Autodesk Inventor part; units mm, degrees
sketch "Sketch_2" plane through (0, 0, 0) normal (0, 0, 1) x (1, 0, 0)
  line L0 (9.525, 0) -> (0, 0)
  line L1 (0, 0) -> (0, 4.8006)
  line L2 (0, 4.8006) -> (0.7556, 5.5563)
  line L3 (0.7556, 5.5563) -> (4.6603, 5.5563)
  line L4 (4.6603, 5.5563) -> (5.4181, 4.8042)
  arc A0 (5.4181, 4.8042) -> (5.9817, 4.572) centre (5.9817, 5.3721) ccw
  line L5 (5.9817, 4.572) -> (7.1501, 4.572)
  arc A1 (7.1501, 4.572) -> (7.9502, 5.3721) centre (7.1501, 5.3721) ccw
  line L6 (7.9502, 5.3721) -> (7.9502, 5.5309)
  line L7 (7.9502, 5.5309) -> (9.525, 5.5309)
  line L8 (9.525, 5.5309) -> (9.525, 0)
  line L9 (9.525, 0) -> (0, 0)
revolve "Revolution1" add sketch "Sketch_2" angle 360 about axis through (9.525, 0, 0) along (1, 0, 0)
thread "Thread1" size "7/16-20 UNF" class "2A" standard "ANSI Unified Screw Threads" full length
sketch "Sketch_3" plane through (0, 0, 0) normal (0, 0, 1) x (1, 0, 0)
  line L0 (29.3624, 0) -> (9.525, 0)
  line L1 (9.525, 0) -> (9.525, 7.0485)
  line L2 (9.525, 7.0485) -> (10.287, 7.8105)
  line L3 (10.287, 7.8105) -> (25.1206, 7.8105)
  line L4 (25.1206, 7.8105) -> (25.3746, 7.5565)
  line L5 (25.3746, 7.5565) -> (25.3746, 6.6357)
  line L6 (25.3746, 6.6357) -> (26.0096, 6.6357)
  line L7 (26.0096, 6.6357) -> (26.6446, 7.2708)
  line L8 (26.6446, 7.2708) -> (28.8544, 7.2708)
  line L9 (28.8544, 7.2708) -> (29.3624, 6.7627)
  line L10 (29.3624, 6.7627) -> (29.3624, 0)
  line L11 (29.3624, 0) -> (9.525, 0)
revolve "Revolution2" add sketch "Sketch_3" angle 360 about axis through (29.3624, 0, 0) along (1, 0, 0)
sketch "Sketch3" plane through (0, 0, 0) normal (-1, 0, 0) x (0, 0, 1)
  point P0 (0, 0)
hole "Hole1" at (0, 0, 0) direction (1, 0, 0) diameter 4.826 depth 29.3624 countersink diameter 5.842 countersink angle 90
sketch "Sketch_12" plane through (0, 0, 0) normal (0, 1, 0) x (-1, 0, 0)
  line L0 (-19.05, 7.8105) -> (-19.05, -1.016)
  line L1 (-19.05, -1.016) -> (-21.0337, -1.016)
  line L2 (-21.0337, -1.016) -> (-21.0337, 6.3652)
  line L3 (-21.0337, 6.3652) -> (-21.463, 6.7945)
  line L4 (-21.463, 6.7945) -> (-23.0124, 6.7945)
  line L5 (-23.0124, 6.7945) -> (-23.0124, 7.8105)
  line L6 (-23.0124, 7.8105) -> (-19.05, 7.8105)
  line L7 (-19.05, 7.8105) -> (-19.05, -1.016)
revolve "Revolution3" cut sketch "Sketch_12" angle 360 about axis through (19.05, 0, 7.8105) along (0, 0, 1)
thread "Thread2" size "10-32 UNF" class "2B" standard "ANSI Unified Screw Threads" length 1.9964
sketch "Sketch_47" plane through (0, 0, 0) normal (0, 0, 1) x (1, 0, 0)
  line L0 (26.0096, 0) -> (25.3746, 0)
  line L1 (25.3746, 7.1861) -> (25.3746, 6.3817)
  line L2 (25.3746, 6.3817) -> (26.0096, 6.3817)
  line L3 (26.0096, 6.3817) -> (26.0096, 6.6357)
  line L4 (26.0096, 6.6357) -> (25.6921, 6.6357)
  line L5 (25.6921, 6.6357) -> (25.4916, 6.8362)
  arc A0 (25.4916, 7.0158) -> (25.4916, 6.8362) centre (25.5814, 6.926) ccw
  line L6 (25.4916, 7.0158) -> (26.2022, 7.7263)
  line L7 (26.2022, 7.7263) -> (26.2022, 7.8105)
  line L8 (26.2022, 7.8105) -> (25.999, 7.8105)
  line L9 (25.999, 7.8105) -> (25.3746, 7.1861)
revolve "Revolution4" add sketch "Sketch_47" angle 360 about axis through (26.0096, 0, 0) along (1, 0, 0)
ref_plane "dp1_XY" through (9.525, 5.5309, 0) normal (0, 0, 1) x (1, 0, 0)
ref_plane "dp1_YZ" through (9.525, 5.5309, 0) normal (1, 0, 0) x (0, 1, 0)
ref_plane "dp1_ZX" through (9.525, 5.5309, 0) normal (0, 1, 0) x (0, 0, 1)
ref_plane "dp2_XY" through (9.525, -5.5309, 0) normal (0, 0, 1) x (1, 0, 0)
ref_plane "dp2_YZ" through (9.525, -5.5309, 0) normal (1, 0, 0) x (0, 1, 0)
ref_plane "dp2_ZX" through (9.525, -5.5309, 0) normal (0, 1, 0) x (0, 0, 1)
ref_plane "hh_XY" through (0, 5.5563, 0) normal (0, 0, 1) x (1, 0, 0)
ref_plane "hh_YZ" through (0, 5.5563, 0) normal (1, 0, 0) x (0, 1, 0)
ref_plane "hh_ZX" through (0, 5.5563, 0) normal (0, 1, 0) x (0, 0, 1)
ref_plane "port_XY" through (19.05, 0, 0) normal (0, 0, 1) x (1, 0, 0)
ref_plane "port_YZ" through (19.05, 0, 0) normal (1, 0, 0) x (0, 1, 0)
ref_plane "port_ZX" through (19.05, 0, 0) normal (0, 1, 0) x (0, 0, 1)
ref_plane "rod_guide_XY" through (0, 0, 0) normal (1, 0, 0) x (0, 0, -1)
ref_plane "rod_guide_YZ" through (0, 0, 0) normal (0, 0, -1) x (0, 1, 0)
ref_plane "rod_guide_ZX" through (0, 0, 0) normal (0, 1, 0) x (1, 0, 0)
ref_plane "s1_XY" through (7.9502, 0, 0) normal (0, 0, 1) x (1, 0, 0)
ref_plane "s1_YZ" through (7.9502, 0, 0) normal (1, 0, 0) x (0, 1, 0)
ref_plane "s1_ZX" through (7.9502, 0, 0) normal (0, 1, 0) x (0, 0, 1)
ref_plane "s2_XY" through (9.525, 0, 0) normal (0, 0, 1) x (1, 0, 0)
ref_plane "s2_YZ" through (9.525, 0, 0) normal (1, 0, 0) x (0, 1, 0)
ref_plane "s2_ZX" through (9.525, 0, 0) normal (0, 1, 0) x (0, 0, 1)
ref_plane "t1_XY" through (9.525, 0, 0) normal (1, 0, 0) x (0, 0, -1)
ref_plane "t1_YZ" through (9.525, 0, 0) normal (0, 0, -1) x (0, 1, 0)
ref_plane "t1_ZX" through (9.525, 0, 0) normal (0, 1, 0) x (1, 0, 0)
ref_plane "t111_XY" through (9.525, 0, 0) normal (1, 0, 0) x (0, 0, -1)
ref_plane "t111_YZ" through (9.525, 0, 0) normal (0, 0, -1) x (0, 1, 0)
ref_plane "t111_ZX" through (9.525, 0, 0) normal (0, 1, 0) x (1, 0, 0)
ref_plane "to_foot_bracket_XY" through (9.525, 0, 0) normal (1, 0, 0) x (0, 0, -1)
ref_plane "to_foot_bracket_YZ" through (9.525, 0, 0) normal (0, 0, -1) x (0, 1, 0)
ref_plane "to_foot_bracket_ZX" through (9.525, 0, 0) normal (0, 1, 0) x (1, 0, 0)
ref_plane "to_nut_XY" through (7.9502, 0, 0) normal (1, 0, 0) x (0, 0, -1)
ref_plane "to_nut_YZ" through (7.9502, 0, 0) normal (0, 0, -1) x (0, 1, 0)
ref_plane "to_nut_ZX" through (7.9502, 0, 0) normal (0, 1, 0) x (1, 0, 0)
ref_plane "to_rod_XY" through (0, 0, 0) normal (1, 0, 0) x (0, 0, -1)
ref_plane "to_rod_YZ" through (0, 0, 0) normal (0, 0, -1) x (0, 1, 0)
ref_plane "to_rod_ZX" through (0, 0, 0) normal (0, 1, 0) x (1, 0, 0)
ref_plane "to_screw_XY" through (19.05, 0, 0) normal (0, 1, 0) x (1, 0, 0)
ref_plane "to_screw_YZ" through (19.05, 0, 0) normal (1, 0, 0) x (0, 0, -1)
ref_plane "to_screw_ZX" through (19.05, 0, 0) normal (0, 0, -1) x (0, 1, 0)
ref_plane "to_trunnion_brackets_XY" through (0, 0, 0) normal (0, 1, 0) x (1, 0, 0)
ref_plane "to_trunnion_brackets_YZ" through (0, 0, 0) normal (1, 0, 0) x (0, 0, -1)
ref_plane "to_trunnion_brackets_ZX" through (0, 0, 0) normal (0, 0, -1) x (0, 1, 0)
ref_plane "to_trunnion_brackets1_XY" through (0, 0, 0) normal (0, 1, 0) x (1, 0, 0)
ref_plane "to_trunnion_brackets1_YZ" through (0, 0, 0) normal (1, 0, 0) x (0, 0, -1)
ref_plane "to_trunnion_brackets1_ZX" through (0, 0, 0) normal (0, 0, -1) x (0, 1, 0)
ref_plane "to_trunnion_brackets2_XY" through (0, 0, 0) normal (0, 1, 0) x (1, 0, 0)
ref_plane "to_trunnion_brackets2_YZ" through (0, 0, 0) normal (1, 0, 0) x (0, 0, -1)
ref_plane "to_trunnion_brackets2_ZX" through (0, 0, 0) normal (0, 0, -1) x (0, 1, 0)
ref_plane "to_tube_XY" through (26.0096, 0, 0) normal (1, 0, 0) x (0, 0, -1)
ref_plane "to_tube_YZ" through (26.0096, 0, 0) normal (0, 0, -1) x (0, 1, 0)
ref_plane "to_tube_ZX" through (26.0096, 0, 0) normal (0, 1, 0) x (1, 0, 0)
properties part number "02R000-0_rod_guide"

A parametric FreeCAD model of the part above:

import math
import FreeCAD as App
import Part
import Sketcher
Q = App.Units.Quantity


def add_polygon(sketch, points):
    """Adds a closed chain of lines whose ends are joined by coincident constraints."""
    first, n = sketch.GeometryCount, len(points)
    for a, b in zip(points, points[1:] + points[:1]):
        sketch.addGeometry(Part.LineSegment(App.Vector(*a, 0), App.Vector(*b, 0)), False)
    for i in range(n):
        sketch.addConstraint(Sketcher.Constraint("Coincident", first + i, 2, first + (i + 1) % n, 1))

doc = App.newDocument("Part")
body = doc.addObject("PartDesign::Body", "Body")

# Sketch on XY plane
sketch1 = body.newObject("Sketcher::SketchObject", "Sketch")
sketch1.AttachmentSupport = (doc.getObject("XY_Plane"), [""])
sketch1.MapMode = "FlatFace"
sketch1.addGeometry([
    Part.LineSegment(App.Vector(0, 0, 0), App.Vector(9.53, 0, 0)),  # 0
    Part.LineSegment(App.Vector(9.53, 0, 0), App.Vector(9.53, 5.53, 0)),  # 1
    Part.LineSegment(App.Vector(9.53, 5.53, 0), App.Vector(7.95, 5.53, 0)),  # 2
    Part.LineSegment(App.Vector(7.95, 5.53, 0), App.Vector(7.95, 5.37, 0)),  # 3
    Part.ArcOfCircle(Part.Circle(App.Vector(7.15, 5.37, 0), App.Vector(0, 0, 1), 0.8), math.radians(-90), math.radians(0)),  # 4
    Part.LineSegment(App.Vector(7.15, 4.57, 0), App.Vector(5.98, 4.57, 0)),  # 5
    Part.ArcOfCircle(Part.Circle(App.Vector(5.98, 5.37, 0), App.Vector(0, 0, 1), 0.8), math.radians(-135), math.radians(-90)),  # 6
    Part.LineSegment(App.Vector(5.42, 4.8, 0), App.Vector(4.66, 5.56, 0)),  # 7
    Part.LineSegment(App.Vector(4.66, 5.56, 0), App.Vector(0.76, 5.56, 0)),  # 8
    Part.LineSegment(App.Vector(0.76, 5.56, 0), App.Vector(0, 4.8, 0)),  # 9
    Part.LineSegment(App.Vector(0, 4.8, 0), App.Vector(0, 0, 0)),  # 10
], False)
sketch1.addConstraint([
    Sketcher.Constraint("Coincident", 0, 2, 1, 1),
    Sketcher.Constraint("Coincident", 1, 2, 2, 1),
    Sketcher.Constraint("Coincident", 2, 2, 3, 1),
    Sketcher.Constraint("Tangent", 3, 2, 4, 2),
    Sketcher.Constraint("Tangent", 4, 1, 5, 1),
    Sketcher.Constraint("Tangent", 5, 2, 6, 2),
    Sketcher.Constraint("Tangent", 6, 1, 7, 1),
    Sketcher.Constraint("Coincident", 7, 2, 8, 1),
    Sketcher.Constraint("Coincident", 8, 2, 9, 1),
    Sketcher.Constraint("Coincident", 9, 2, 10, 1),
    Sketcher.Constraint("Coincident", 10, 2, 0, 1),
    Sketcher.Constraint("Horizontal", 0),
    Sketcher.Constraint("Vertical", 1),
    Sketcher.Constraint("Horizontal", 2),
    Sketcher.Constraint("Vertical", 3),
    Sketcher.Constraint("Horizontal", 5),
    Sketcher.Constraint("Horizontal", 8),
    Sketcher.Constraint("Vertical", 10),
    Sketcher.Constraint("Coincident", 10, 2, -1, 1),
    Sketcher.Constraint("Equal", 4, 6),
    Sketcher.Constraint("Radius", 4, Q("0.0315 in")),
    Sketcher.Constraint("DistanceX", 0, 1, 0, 2, Q("0.375 in")),
    Sketcher.Constraint("DistanceX", 2, 2, 2, 1, Q("0.062 in")),
    Sketcher.Constraint("DistanceX", 5, 2, 5, 1, Q("0.046 in")),
    Sketcher.Constraint("DistanceY", 10, 2, 10, 1, Q("0.189 in")),
    Sketcher.Constraint("DistanceY", -1, 1, 4, 1, Q("0.18 in")),
    Sketcher.Constraint("DistanceY", -1, 1, 7, 2, Q("0.218752 in")),
    Sketcher.Constraint("DistanceX", 8, 2, 8, 1, Q("3.9047 mm")),
    Sketcher.Constraint("DistanceY", 1, 1, 1, 2, Q("5.531 mm")),
    Sketcher.Constraint("DistanceX", -1, 1, 6, 1, Q("0.2133 in")),
])
revolution = body.newObject("PartDesign::Revolution", "Revolution")
revolution.Profile = sketch1
revolution.ReferenceAxis = (sketch1, ["H_Axis"])
revolution.Angle = 360

# Sketch on XY plane
sketch2 = body.newObject("Sketcher::SketchObject", "Sketch001")
sketch2.AttachmentSupport = (doc.getObject("XY_Plane"), [""])
sketch2.MapMode = "FlatFace"
add_polygon(sketch2, [(9.53, 0), (29.36, 0), (29.36, 6.76), (28.85, 7.27), (26.64, 7.27), (26.01, 6.64), (25.37, 6.64), (25.37, 7.56), (25.12, 7.81), (10.29, 7.81), (9.53, 7.05)])  # lines 0-10
sketch2.addConstraint([
    Sketcher.Constraint("Horizontal", 0),
    Sketcher.Constraint("Vertical", 1),
    Sketcher.Constraint("Horizontal", 3),
    Sketcher.Constraint("Horizontal", 5),
    Sketcher.Constraint("Vertical", 6),
    Sketcher.Constraint("Horizontal", 8),
    Sketcher.Constraint("Vertical", 10),
    Sketcher.Constraint("PointOnObject", 0, 2, -1),
    Sketcher.Constraint("Perpendicular", 2, 4),
    Sketcher.Constraint("Perpendicular", 4, 7),
    Sketcher.Constraint("Perpendicular", 7, 9),
    Sketcher.Constraint("Angle", 7, Q("135 deg")),
    Sketcher.Constraint("DistanceX", 0, 1, 0, 2, Q("0.781 in")),
    Sketcher.Constraint("DistanceX", 3, 2, 3, 1, Q("0.087 in")),
    Sketcher.Constraint("DistanceX", 5, 2, 5, 1, Q("0.025 in")),
    Sketcher.Constraint("DistanceX", 8, 2, 8, 1, Q("0.584 in")),
    Sketcher.Constraint("DistanceX", 2, 2, 1, 2, Q("0.02 in")),
    Sketcher.Constraint("DistanceX", 5, 2, 3, 2, Q("0.05 in")),
    Sketcher.Constraint("DistanceX", 7, 2, 6, 2, Q("0.01 in")),
    Sketcher.Constraint("DistanceY", 10, 2, 10, 1, Q("0.2775 in")),
    Sketcher.Constraint("DistanceX", -1, 1, 0, 2, Q("1.156 in")),
    Sketcher.Constraint("DistanceY", 1, 2, 6, 2, Q("0.031252 in")),
])
revolution2 = body.newObject("PartDesign::Revolution", "Revolution001")
revolution2.Profile = sketch2
revolution2.ReferenceAxis = (sketch2, ["H_Axis"])
revolution2.Angle = 360

# Sketch on YZ plane
sketch3 = body.newObject("Sketcher::SketchObject", "Sketch002")
sketch3.AttachmentSupport = (doc.getObject("YZ_Plane"), [""])
sketch3.MapMode = "FlatFace"
sketch3.addGeometry(Part.Circle(App.Vector(0, 0, 0), App.Vector(0, 0, 1), 2.4), False)
sketch3.addConstraint([
    Sketcher.Constraint("Coincident", 0, 3, -1, 1),
    Sketcher.Constraint("Diameter", 0, Q("0.19 in")),
])
doc.recompute()
hole = body.newObject("PartDesign::Hole", "Hole")
hole.Profile = sketch3
hole.ThreadType = "None"
hole.Diameter = Q("0.19 in")
hole.DepthType = "Dimension"
hole.Depth = Q("1.156 in")
hole.DrillPoint = "Flat"
hole.HoleCutType = "Countersink"
hole.HoleCutDiameter = Q("0.23 in")
hole.HoleCutCountersinkAngle = 90
hole.Reversed = True

# Sketch on XZ plane
sketch4 = body.newObject("Sketcher::SketchObject", "Sketch003")
sketch4.AttachmentSupport = (doc.getObject("XZ_Plane"), [""])
sketch4.MapMode = "FlatFace"
add_polygon(sketch4, [(19.1, -1), (19.1, 7.8), (23, 7.8), (23, 6.8), (21.5, 6.8), (21, 6.4), (21, -1)])  # lines 0-6
sketch4.addGeometry(Part.LineSegment(App.Vector(19.1, -1, 0), App.Vector(19.1, 7.8, 0)), True)  # axis
sketch4.addConstraint([
    Sketcher.Constraint("Vertical", 0),
    Sketcher.Constraint("Horizontal", 1),
    Sketcher.Constraint("Vertical", 2),
    Sketcher.Constraint("Horizontal", 3),
    Sketcher.Constraint("Vertical", 5),
    Sketcher.Constraint("Horizontal", 6),
    Sketcher.Constraint("Vertical", 7),
    Sketcher.Constraint("Coincident", 7, 1, 6, 2),
    Sketcher.Constraint("Horizontal", 1, 2, 7, 2),
    Sketcher.Constraint("Angle", 4, Q("-135 deg")),
    Sketcher.Constraint("DistanceY", 2, 2, 2, 1, Q("0.04 in")),
    Sketcher.Constraint("DistanceX", 1, 1, 1, 2, Q("0.156 in")),
    Sketcher.Constraint("DistanceX", 3, 2, 3, 1, Q("0.061 in")),
    Sketcher.Constraint("DistanceX", -1, 1, 0, 2, Q("0.75 in")),
    Sketcher.Constraint("DistanceY", 5, 2, -1, 1, Q("0.04 in")),
    Sketcher.Constraint("DistanceX", 6, 2, 6, 1, Q("0.0781 in")),
    Sketcher.Constraint("DistanceY", 0, 1, 0, 2, Q("0.3475 in")),
])
groove = body.newObject("PartDesign::Groove", "Groove")
groove.Profile = sketch4
groove.ReferenceAxis = (sketch4, ["Axis0"])
groove.Angle = 360

# Sketch on XY plane
sketch5 = body.newObject("Sketcher::SketchObject", "Sketch004")
sketch5.AttachmentSupport = (doc.getObject("XY_Plane"), [""])
sketch5.MapMode = "FlatFace"
sketch5.addGeometry([
    Part.LineSegment(App.Vector(26, 7.81, 0), App.Vector(25.37, 7.19, 0)),  # 0
    Part.LineSegment(App.Vector(25.37, 7.19, 0), App.Vector(25.37, 6.38, 0)),  # 1
    Part.LineSegment(App.Vector(25.37, 6.38, 0), App.Vector(26.01, 6.38, 0)),  # 2
    Part.LineSegment(App.Vector(26.01, 6.38, 0), App.Vector(26.01, 6.64, 0)),  # 3
    Part.LineSegment(App.Vector(26.01, 6.64, 0), App.Vector(25.69, 6.64, 0)),  # 4
    Part.LineSegment(App.Vector(25.69, 6.64, 0), App.Vector(25.49, 6.84, 0)),  # 5
    Part.ArcOfCircle(Part.Circle(App.Vector(25.58, 6.93, 0), App.Vector(0, 0, 1), 0.13), math.radians(135), math.radians(225)),  # 6
    Part.LineSegment(App.Vector(25.49, 7.02, 0), App.Vector(26.2, 7.73, 0)),  # 7
    Part.LineSegment(App.Vector(26.2, 7.73, 0), App.Vector(26.2, 7.81, 0)),  # 8
    Part.LineSegment(App.Vector(26.2, 7.81, 0), App.Vector(26, 7.81, 0)),  # 9
], False)
sketch5.addConstraint([
    Sketcher.Constraint("Coincident", 0, 2, 1, 1),
    Sketcher.Constraint("Coincident", 1, 2, 2, 1),
    Sketcher.Constraint("Coincident", 2, 2, 3, 1),
    Sketcher.Constraint("Coincident", 3, 2, 4, 1),
    Sketcher.Constraint("Coincident", 4, 2, 5, 1),
    Sketcher.Constraint("Tangent", 5, 2, 6, 2),
    Sketcher.Constraint("Tangent", 6, 1, 7, 1),
    Sketcher.Constraint("Coincident", 7, 2, 8, 1),
    Sketcher.Constraint("Coincident", 8, 2, 9, 1),
    Sketcher.Constraint("Coincident", 9, 2, 0, 1),
    Sketcher.Constraint("Vertical", 1),
    Sketcher.Constraint("Horizontal", 2),
    Sketcher.Constraint("Vertical", 3),
    Sketcher.Constraint("Horizontal", 4),
    Sketcher.Constraint("Vertical", 8),
    Sketcher.Constraint("Horizontal", 9),
    Sketcher.Constraint("Perpendicular", 0, 5),
    Sketcher.Constraint("Perpendicular", 5, 7),
    Sketcher.Constraint("Vertical", 5, 2, 6, 1),
    Sketcher.Constraint("Radius", 6, Q("0.005 in")),
    Sketcher.Constraint("DistanceY", 3, 1, 3, 2, Q("0.01 in")),
    Sketcher.Constraint("DistanceX", 2, 1, 2, 2, Q("0.025 in")),
    Sketcher.Constraint("DistanceX", 9, 2, 9, 1, Q("0.008 in")),
    Sketcher.Constraint("DistanceX", 4, 2, 4, 1, Q("0.0125 in")),
    Sketcher.Constraint("DistanceX", -1, 1, 0, 2, Q("0.999 in")),
    Sketcher.Constraint("DistanceY", 1, 2, 1, 1, Q("0.8044 mm")),
    Sketcher.Constraint("DistanceY", 8, 1, 8, 2, Q("0.0842 mm")),
    Sketcher.Constraint("DistanceY", -1, 1, 8, 2, Q("0.3075 in")),
    Sketcher.Constraint("DistanceY", 6, 3, 7, 2, Q("0.0315 in")),
])
revolution3 = body.newObject("PartDesign::Revolution", "Revolution002")
revolution3.Profile = sketch5
revolution3.ReferenceAxis = (sketch5, ["H_Axis"])
revolution3.Angle = 360

doc.recompute()
